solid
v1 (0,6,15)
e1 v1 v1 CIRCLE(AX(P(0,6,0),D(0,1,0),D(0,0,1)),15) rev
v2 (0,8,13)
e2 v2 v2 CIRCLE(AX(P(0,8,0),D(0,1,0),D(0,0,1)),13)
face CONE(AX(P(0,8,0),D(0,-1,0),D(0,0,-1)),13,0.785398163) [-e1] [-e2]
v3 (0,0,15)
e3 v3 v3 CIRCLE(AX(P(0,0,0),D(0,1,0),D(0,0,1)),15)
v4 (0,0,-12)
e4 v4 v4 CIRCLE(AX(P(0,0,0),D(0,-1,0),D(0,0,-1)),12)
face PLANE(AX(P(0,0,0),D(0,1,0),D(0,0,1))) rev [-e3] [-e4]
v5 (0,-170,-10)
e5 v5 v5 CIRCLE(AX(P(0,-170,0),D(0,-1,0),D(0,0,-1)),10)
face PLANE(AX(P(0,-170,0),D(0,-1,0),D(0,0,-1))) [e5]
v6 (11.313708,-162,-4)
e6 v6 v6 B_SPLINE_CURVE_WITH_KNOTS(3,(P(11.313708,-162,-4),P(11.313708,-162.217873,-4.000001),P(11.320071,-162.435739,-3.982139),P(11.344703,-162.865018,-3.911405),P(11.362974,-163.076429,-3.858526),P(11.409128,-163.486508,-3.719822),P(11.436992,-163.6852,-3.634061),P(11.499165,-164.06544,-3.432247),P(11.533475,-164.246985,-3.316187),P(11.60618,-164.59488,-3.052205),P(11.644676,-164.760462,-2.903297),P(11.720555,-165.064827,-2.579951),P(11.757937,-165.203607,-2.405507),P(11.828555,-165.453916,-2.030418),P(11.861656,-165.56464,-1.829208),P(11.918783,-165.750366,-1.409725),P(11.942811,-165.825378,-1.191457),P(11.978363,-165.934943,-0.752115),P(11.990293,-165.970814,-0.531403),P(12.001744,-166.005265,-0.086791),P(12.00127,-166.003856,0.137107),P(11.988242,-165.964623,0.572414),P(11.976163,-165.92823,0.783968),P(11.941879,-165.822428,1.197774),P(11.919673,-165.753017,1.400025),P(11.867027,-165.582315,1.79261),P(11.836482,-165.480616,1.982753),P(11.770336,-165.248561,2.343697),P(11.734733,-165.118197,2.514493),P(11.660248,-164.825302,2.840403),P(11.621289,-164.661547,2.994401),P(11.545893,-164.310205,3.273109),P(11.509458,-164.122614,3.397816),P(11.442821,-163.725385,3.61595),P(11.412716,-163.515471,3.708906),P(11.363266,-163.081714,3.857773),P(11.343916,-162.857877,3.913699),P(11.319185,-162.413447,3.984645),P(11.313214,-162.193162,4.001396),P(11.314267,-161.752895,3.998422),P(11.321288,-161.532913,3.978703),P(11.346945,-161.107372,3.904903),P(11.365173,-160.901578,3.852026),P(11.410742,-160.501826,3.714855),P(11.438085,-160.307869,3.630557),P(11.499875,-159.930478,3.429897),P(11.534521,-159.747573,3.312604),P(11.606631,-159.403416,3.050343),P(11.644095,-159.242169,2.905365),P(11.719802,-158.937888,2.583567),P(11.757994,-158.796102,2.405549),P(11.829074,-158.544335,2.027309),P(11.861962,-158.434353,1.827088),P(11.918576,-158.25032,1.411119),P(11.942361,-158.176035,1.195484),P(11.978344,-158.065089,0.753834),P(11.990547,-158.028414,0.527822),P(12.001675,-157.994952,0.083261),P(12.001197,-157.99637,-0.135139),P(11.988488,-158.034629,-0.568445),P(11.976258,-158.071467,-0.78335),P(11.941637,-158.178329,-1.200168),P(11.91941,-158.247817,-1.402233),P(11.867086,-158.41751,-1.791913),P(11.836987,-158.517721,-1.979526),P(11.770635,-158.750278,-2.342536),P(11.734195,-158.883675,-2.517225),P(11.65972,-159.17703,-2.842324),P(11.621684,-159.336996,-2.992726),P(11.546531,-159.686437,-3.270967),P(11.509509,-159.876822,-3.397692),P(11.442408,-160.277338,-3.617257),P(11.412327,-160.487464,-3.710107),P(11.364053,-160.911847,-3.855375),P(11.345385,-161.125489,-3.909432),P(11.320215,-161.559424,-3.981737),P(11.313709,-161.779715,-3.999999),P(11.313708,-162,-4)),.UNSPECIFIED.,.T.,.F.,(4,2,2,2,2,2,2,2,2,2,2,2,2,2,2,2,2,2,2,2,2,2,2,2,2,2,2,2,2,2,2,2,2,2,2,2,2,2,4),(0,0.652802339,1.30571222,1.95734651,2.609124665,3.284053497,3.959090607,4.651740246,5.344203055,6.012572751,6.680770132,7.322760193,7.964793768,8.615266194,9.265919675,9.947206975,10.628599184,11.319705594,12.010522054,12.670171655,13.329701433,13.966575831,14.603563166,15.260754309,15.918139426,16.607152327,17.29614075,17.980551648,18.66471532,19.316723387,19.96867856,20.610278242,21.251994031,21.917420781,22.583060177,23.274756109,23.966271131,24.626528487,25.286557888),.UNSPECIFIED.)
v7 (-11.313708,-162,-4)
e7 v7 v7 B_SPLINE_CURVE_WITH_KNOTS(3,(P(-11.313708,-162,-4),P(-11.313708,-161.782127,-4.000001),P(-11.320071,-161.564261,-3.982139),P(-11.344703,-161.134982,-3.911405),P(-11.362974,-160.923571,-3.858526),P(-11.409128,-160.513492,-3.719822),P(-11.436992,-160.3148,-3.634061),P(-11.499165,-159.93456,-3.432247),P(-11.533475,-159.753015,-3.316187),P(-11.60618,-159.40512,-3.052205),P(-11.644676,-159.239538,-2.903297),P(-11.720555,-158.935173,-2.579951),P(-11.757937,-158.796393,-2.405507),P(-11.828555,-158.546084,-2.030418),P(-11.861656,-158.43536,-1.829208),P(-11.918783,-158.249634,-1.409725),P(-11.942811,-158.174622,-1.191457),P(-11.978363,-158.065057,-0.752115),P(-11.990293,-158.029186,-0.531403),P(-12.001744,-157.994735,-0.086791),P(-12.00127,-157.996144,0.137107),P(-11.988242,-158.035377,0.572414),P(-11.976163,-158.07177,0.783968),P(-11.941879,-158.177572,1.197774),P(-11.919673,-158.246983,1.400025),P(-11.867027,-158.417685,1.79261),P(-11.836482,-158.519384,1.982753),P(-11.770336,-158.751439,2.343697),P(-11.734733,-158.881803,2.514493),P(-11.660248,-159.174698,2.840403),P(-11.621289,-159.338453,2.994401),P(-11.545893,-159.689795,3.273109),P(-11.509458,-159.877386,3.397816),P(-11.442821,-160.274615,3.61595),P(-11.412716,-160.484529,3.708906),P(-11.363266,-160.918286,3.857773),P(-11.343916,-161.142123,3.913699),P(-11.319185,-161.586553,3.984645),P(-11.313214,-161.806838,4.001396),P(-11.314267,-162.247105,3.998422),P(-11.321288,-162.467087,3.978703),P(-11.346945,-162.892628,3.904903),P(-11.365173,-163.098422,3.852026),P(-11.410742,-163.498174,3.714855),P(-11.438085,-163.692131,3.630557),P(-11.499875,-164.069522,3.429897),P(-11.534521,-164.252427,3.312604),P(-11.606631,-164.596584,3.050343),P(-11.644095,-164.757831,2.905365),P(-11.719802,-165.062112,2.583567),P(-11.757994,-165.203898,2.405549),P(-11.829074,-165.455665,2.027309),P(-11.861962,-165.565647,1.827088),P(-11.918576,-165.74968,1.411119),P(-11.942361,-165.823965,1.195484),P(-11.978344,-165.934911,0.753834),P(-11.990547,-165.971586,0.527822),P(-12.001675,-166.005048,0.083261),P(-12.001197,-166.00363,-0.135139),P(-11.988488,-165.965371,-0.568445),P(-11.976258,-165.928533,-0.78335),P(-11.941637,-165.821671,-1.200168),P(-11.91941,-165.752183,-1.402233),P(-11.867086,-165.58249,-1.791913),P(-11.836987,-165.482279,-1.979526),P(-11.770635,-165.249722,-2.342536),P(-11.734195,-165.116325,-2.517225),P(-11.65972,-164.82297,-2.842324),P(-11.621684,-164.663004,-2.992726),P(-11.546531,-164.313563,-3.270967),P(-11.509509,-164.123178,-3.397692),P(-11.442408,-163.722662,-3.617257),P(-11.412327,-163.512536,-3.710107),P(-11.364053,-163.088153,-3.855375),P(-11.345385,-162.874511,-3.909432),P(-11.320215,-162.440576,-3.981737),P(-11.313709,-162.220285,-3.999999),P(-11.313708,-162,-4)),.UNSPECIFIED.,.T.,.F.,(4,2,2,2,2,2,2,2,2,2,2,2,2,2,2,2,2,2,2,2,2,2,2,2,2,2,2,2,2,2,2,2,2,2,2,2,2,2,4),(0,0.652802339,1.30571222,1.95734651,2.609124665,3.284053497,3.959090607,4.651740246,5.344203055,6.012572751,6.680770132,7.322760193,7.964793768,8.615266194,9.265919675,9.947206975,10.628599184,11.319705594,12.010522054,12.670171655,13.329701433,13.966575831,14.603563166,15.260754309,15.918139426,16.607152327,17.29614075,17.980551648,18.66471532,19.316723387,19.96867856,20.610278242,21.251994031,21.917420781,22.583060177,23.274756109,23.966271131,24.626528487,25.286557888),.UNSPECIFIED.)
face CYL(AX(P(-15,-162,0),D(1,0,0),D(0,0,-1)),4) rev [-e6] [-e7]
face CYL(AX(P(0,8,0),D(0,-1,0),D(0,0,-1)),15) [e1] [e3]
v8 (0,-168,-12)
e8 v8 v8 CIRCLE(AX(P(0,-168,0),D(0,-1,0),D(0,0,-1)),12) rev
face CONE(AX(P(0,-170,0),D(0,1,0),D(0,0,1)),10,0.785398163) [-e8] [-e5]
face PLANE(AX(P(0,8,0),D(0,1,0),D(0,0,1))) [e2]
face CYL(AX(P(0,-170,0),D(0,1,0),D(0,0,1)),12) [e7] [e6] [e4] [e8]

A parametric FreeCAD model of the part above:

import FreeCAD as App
import Part
import Sketcher


def edges_at(feature, points):
    """Names of the edges that pass closest to the given points."""
    edges = feature.Shape.Edges
    near = lambda p: min(range(len(edges)), key=lambda i: edges[i].distToShape(Part.Vertex(*p))[0])
    return sorted({f"Edge{near(p) + 1}" for p in points})

doc = App.newDocument("Part")
body = doc.addObject("PartDesign::Body", "Body")

sketch1 = body.newObject("Sketcher::SketchObject", "Sketch")
sketch1.AttachmentSupport = (doc.getObject("XZ_Plane"), [""])
sketch1.MapMode = "FlatFace"
sketch1.addGeometry(Part.Circle(App.Vector(0, 0, 0), App.Vector(0, 0, 1), 15), False)
sketch1.addConstraint([
    Sketcher.Constraint("Coincident", 0, 3, -1, 1),
    Sketcher.Constraint("Diameter", 0, 30.0),
])
pad1 = body.newObject("PartDesign::Pad", "Pad")
pad1.Profile = sketch1
pad1.Length = 8
pad1.Reversed = True

sketch2 = body.newObject("Sketcher::SketchObject", "Sketch001")
sketch2.AttachmentSupport = (doc.getObject("XZ_Plane"), [""])
sketch2.MapMode = "FlatFace"
sketch2.addGeometry(Part.Circle(App.Vector(0, 0, 0), App.Vector(0, 0, 1), 12), False)
sketch2.addConstraint([
    Sketcher.Constraint("Coincident", 0, 3, -1, 1),
    Sketcher.Constraint("Diameter", 0, 24.0),
])
pad2 = body.newObject("PartDesign::Pad", "Pad001")
pad2.Profile = sketch2
pad2.Length = 170

sketch3 = body.newObject("Sketcher::SketchObject", "Sketch002")
sketch3.AttachmentSupport = (doc.getObject("YZ_Plane"), [""])
sketch3.MapMode = "FlatFace"
sketch3.addGeometry(Part.Circle(App.Vector(-162, 0, 0), App.Vector(0, 0, 1), 4), False)
sketch3.addConstraint([
    Sketcher.Constraint("PointOnObject", 0, 3, -1),
    Sketcher.Constraint("Diameter", 0, 8.0),
    Sketcher.Constraint("DistanceX", 0, 3, -1, 1, 162.0),
])
pocket1 = body.newObject("PartDesign::Pocket", "Pocket")
pocket1.Profile = sketch3
pocket1.Type = "ThroughAll"
pocket1.Midplane = True
doc.recompute()

chamfer = body.newObject("PartDesign::Chamfer", "Chamfer")
chamfer.Base = (pocket1, edges_at(pocket1, [(0, 8, -15), (0, -170, 12)]))
chamfer.Size = 2

doc.recompute()
